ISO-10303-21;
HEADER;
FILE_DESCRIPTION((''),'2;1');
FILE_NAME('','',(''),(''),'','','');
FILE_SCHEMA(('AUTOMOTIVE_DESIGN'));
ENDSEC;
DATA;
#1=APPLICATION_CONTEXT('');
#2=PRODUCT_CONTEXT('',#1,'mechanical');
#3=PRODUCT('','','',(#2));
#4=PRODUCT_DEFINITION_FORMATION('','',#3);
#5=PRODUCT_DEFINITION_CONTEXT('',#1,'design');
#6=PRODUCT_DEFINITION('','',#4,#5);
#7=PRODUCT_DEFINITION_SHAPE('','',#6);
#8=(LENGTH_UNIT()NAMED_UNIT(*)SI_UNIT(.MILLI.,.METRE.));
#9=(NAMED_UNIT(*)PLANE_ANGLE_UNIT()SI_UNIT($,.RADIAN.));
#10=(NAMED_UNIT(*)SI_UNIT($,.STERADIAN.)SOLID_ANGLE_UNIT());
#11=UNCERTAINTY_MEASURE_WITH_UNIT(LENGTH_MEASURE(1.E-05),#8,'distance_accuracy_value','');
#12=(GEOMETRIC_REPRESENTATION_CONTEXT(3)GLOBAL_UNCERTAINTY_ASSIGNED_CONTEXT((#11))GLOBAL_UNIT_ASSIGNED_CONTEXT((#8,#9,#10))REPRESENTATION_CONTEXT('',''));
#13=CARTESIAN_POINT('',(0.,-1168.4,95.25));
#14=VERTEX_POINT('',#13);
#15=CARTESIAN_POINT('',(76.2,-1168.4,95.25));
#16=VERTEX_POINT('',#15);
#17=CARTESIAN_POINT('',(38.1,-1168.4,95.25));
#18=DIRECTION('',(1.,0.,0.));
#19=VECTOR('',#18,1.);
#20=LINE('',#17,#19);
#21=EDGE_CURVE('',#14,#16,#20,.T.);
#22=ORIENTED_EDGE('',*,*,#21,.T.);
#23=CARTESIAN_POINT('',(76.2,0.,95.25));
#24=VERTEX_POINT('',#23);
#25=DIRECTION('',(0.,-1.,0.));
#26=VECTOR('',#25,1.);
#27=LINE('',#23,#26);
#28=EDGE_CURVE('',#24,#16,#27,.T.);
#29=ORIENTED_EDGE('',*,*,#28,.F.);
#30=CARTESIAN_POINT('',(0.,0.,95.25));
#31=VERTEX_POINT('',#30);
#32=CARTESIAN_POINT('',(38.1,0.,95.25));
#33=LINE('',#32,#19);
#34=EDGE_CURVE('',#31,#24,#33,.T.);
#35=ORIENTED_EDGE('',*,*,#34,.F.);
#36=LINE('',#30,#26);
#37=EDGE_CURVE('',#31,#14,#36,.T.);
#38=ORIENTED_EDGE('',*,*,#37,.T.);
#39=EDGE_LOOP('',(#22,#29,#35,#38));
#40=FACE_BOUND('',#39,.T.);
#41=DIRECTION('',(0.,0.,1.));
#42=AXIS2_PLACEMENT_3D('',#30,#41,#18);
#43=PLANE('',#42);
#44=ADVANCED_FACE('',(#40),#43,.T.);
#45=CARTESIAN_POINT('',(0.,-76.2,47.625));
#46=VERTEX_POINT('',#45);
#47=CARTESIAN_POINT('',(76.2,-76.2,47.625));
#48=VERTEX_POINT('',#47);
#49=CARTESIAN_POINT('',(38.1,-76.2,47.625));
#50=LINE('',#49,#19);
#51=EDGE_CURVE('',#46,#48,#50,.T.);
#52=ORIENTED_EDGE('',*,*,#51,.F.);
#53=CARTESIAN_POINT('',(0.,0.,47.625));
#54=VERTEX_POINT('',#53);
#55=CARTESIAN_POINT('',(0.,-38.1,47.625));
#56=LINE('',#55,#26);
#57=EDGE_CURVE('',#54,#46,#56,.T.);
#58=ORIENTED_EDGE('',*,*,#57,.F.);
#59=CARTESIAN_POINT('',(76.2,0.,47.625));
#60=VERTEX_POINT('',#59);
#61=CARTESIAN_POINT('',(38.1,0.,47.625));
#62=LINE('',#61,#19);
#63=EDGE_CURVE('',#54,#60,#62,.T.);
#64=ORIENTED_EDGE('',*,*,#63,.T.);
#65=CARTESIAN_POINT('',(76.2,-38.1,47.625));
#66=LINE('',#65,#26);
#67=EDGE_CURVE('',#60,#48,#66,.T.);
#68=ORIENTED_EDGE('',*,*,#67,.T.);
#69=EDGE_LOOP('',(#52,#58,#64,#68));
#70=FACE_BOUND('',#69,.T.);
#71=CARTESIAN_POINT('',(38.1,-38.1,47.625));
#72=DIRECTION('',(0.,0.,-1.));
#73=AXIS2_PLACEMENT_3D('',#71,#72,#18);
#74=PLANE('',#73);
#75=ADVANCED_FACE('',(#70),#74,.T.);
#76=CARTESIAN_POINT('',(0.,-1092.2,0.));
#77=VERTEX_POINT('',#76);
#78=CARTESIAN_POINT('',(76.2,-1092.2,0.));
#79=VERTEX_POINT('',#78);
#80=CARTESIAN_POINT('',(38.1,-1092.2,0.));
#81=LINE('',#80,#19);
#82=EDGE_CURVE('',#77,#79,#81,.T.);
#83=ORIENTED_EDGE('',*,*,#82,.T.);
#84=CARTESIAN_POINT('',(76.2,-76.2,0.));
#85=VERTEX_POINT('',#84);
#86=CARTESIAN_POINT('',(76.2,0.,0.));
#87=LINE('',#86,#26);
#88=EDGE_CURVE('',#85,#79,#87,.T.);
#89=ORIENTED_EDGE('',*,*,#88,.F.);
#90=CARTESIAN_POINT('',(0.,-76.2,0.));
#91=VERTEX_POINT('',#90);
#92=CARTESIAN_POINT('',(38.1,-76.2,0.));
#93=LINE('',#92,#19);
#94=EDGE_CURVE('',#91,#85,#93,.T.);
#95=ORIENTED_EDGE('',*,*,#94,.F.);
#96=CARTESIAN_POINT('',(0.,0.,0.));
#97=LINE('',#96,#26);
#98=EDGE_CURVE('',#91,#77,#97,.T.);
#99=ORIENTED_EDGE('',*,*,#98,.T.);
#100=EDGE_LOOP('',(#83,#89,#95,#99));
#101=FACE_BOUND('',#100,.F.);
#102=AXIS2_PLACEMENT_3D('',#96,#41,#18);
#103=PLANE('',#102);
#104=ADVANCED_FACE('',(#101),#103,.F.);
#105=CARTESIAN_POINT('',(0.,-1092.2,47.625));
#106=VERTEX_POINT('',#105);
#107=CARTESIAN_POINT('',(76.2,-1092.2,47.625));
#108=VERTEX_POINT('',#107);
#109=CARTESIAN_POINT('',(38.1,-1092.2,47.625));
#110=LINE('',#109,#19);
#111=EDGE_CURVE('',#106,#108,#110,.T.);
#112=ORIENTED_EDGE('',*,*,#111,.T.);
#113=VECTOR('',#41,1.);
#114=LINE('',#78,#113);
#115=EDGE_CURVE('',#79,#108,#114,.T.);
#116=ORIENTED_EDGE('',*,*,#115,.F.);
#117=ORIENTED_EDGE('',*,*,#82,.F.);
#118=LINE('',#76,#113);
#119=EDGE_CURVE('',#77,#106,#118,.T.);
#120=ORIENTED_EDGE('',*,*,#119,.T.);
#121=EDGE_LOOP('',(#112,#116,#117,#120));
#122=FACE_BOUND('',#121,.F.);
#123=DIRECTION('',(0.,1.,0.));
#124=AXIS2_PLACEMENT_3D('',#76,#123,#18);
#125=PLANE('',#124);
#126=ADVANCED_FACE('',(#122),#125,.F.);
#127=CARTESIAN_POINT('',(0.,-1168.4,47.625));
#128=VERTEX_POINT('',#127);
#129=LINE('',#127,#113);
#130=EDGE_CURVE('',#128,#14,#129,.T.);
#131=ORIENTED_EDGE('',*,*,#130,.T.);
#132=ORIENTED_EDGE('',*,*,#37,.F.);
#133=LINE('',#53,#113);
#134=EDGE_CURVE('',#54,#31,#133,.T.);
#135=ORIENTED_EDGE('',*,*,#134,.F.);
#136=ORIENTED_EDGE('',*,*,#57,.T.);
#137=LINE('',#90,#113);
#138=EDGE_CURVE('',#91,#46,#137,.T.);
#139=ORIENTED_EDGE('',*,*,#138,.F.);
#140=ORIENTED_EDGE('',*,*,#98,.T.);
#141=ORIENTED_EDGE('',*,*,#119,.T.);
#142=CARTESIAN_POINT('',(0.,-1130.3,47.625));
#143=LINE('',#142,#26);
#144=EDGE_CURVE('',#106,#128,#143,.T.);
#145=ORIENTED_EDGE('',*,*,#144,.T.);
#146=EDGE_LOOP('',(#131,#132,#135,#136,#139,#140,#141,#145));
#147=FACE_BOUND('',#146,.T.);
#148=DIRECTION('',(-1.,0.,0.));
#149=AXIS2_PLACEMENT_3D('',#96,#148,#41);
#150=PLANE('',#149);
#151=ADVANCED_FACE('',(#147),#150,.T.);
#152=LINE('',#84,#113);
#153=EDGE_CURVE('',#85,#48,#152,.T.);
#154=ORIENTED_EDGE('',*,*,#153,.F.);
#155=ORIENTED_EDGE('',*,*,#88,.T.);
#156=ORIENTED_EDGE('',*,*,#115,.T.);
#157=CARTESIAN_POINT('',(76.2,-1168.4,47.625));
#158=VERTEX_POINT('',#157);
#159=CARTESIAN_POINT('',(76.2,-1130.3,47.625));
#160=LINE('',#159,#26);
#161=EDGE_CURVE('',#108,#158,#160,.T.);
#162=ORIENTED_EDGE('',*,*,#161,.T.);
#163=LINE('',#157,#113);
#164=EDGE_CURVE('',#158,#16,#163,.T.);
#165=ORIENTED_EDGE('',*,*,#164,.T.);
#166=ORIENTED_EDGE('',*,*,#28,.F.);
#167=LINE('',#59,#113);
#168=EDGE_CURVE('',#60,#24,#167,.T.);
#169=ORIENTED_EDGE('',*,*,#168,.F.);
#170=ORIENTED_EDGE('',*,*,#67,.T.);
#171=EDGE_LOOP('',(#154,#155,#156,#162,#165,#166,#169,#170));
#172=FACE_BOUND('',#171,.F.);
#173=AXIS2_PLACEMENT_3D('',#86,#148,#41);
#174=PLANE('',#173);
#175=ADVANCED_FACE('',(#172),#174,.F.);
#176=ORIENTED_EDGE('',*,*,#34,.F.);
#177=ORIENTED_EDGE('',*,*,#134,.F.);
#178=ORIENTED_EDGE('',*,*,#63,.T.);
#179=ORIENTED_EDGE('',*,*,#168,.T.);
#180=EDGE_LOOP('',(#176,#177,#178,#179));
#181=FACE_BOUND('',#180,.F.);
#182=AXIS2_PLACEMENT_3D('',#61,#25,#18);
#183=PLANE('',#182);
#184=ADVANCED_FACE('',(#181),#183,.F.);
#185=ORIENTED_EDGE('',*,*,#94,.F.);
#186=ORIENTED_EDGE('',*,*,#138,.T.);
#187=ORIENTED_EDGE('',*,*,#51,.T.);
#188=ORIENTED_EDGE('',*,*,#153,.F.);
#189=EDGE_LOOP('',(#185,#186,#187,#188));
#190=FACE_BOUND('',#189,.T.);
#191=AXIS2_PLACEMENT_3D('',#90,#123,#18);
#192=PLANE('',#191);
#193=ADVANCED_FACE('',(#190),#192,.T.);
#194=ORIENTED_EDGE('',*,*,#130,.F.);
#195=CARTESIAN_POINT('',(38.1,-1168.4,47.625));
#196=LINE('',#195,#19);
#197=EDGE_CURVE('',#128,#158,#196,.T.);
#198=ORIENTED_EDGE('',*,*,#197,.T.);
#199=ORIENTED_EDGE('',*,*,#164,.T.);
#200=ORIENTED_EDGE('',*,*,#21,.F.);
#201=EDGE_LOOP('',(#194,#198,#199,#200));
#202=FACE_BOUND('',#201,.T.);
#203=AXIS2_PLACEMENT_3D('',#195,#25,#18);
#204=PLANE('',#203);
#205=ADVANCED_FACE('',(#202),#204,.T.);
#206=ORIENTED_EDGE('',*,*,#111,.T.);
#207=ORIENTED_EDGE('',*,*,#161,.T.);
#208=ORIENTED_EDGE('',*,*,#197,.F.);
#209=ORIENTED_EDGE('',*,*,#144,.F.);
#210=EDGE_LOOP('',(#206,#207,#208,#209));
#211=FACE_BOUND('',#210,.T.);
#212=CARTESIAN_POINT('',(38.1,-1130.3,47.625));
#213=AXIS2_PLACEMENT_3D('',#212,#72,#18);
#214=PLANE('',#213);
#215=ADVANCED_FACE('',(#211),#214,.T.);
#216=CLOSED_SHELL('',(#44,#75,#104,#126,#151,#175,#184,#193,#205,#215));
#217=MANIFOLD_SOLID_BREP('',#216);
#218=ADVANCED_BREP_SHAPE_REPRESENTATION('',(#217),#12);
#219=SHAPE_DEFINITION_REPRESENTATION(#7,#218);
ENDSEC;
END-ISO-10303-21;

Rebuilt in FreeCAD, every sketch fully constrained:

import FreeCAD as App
import Part
import Sketcher

V = App.Vector
Q = App.Units.Quantity


def add_polygon(sketch, points):
    """Adds a closed chain of lines whose ends are joined by coincident constraints."""
    first, n = sketch.GeometryCount, len(points)
    for a, b in zip(points, points[1:] + points[:1]):
        sketch.addGeometry(Part.LineSegment(App.Vector(*a, 0), App.Vector(*b, 0)), False)
    for i in range(n):
        sketch.addConstraint(Sketcher.Constraint("Coincident", first + i, 2, first + (i + 1) % n, 1))

doc = App.newDocument("Part")
body = doc.addObject("PartDesign::Body", "Body")

# Sketch on XZ plane
sketch1 = body.newObject("Sketcher::SketchObject", "Sketch")
sketch1.AttachmentSupport = (doc.getObject("XZ_Plane"), [""])
sketch1.MapMode = "FlatFace"
add_polygon(sketch1, [(0, 95), (0, 0), (76, 0), (76, 95)])  # lines 0-3
sketch1.addConstraint([
    Sketcher.Constraint("Vertical", 0),
    Sketcher.Constraint("Horizontal", 1),
    Sketcher.Constraint("Vertical", 2),
    Sketcher.Constraint("Horizontal", 3),
    Sketcher.Constraint("Coincident", 0, 2, -1, 1),
    Sketcher.Constraint("DistanceX", 1, 1, 1, 2, Q("3 in")),
    Sketcher.Constraint("DistanceY", 0, 2, 0, 1, Q("3.75 in")),
])
pad1 = body.newObject("PartDesign::Pad", "Pad")
pad1.Profile = sketch1
pad1.Length = Q("46 in")

# Sketch on XY plane
sketch2 = body.newObject("Sketcher::SketchObject", "Sketch001")
sketch2.AttachmentSupport = (doc.getObject("XY_Plane"), [""])
sketch2.MapMode = "FlatFace"
add_polygon(sketch2, [(0, -76), (0, 0), (76, 0), (76, -76)])  # lines 0-3
add_polygon(sketch2, [(0, -1168), (0, -1092), (76, -1092), (76, -1168)])  # lines 4-7
sketch2.addConstraint([
    Sketcher.Constraint("Vertical", 0),
    Sketcher.Constraint("Horizontal", 1),
    Sketcher.Constraint("Vertical", 2),
    Sketcher.Constraint("Horizontal", 3),
    Sketcher.Constraint("Vertical", 4),
    Sketcher.Constraint("Horizontal", 5),
    Sketcher.Constraint("Vertical", 6),
    Sketcher.Constraint("Horizontal", 7),
    Sketcher.Constraint("Coincident", 0, 2, -1, 1),
    Sketcher.Constraint("PointOnObject", 4, 2, -2),
    Sketcher.Constraint("Vertical", 2, 2, 5, 2),
    Sketcher.Constraint("Equal", 7, 0),
    Sketcher.Constraint("Equal", 2, 4),
    Sketcher.Constraint("DistanceX", 1, 1, 1, 2, Q("3 in")),
    Sketcher.Constraint("DistanceY", 4, 2, -1, 1, Q("43 in")),
])
pocket1 = body.newObject("PartDesign::Pocket", "Pocket")
pocket1.Profile = sketch2
pocket1.Length = Q("1.875 in")
pocket1.Reversed = True

doc.recompute()
